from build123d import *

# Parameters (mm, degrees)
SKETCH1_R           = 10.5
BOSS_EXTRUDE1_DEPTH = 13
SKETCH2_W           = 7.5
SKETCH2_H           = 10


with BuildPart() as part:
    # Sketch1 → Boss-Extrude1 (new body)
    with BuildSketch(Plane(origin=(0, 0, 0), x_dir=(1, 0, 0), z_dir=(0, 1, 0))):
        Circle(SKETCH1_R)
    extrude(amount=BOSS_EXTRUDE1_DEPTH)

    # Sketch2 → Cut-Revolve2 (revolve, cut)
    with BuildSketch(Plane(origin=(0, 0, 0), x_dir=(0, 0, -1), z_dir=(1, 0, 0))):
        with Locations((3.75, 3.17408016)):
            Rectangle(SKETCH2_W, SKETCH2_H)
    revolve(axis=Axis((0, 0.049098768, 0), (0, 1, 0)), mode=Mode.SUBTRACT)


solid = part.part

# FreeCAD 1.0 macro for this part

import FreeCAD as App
import Part
import Sketcher
Q = App.Units.Quantity

doc = App.newDocument("Part")
body = doc.addObject("PartDesign::Body", "Body")

sketch1 = body.newObject("Sketcher::SketchObject", "Sketch")
sketch1.AttachmentSupport = (doc.getObject("XZ_Plane"), [""])
sketch1.MapMode = "FlatFace"
sketch1.addGeometry(Part.Circle(App.Vector(0, 0, 0), App.Vector(0, 0, 1), 10.5), False)
sketch1.addConstraint([
    Sketcher.Constraint("Coincident", 0, 3, -1, 1),
    Sketcher.Constraint("Diameter", 0, Q("21 mm")),
])
pad1 = body.newObject("PartDesign::Pad", "Pad")
pad1.Profile = sketch1
pad1.Length = 13
pad1.Reversed = True

sketch2 = body.newObject("Sketcher::SketchObject", "Sketch001")
sketch2.AttachmentSupport = (doc.getObject("YZ_Plane"), [""])
sketch2.MapMode = "FlatFace"
sketch2.addGeometry([
    Part.LineSegment(App.Vector(8.17408, 0, 0), App.Vector(-1.82592, 0, 0)),
    Part.LineSegment(App.Vector(-1.82592, 0, 0), App.Vector(-1.82592, -7.5, 0)),
    Part.LineSegment(App.Vector(-1.82592, -7.5, 0), App.Vector(8.17408, -7.5, 0)),
    Part.LineSegment(App.Vector(8.17408, -7.5, 0), App.Vector(8.17408, 0, 0)),
], False)
sketch2.addConstraint([
    Sketcher.Constraint("Coincident", 0, 2, 1, 1),
    Sketcher.Constraint("Coincident", 1, 2, 2, 1),
    Sketcher.Constraint("Coincident", 2, 2, 3, 1),
    Sketcher.Constraint("Coincident", 3, 2, 0, 1),
    Sketcher.Constraint("Horizontal", 0),
    Sketcher.Constraint("Vertical", 1),
    Sketcher.Constraint("Horizontal", 2),
    Sketcher.Constraint("Vertical", 3),
    Sketcher.Constraint("PointOnObject", 0, 2, -1),
    Sketcher.Constraint("DistanceX", 0, 2, 0, 1, Q("10 mm")),
    Sketcher.Constraint("DistanceY", 1, 2, 1, 1, Q("7.5 mm")),
    Sketcher.Constraint("DistanceX", 0, 2, -1, 1, Q("1.82592 mm")),
])
groove = body.newObject("PartDesign::Groove", "Groove")
groove.Profile = sketch2
groove.ReferenceAxis = (sketch2, ["H_Axis"])
groove.Angle = 360

doc.recompute()
